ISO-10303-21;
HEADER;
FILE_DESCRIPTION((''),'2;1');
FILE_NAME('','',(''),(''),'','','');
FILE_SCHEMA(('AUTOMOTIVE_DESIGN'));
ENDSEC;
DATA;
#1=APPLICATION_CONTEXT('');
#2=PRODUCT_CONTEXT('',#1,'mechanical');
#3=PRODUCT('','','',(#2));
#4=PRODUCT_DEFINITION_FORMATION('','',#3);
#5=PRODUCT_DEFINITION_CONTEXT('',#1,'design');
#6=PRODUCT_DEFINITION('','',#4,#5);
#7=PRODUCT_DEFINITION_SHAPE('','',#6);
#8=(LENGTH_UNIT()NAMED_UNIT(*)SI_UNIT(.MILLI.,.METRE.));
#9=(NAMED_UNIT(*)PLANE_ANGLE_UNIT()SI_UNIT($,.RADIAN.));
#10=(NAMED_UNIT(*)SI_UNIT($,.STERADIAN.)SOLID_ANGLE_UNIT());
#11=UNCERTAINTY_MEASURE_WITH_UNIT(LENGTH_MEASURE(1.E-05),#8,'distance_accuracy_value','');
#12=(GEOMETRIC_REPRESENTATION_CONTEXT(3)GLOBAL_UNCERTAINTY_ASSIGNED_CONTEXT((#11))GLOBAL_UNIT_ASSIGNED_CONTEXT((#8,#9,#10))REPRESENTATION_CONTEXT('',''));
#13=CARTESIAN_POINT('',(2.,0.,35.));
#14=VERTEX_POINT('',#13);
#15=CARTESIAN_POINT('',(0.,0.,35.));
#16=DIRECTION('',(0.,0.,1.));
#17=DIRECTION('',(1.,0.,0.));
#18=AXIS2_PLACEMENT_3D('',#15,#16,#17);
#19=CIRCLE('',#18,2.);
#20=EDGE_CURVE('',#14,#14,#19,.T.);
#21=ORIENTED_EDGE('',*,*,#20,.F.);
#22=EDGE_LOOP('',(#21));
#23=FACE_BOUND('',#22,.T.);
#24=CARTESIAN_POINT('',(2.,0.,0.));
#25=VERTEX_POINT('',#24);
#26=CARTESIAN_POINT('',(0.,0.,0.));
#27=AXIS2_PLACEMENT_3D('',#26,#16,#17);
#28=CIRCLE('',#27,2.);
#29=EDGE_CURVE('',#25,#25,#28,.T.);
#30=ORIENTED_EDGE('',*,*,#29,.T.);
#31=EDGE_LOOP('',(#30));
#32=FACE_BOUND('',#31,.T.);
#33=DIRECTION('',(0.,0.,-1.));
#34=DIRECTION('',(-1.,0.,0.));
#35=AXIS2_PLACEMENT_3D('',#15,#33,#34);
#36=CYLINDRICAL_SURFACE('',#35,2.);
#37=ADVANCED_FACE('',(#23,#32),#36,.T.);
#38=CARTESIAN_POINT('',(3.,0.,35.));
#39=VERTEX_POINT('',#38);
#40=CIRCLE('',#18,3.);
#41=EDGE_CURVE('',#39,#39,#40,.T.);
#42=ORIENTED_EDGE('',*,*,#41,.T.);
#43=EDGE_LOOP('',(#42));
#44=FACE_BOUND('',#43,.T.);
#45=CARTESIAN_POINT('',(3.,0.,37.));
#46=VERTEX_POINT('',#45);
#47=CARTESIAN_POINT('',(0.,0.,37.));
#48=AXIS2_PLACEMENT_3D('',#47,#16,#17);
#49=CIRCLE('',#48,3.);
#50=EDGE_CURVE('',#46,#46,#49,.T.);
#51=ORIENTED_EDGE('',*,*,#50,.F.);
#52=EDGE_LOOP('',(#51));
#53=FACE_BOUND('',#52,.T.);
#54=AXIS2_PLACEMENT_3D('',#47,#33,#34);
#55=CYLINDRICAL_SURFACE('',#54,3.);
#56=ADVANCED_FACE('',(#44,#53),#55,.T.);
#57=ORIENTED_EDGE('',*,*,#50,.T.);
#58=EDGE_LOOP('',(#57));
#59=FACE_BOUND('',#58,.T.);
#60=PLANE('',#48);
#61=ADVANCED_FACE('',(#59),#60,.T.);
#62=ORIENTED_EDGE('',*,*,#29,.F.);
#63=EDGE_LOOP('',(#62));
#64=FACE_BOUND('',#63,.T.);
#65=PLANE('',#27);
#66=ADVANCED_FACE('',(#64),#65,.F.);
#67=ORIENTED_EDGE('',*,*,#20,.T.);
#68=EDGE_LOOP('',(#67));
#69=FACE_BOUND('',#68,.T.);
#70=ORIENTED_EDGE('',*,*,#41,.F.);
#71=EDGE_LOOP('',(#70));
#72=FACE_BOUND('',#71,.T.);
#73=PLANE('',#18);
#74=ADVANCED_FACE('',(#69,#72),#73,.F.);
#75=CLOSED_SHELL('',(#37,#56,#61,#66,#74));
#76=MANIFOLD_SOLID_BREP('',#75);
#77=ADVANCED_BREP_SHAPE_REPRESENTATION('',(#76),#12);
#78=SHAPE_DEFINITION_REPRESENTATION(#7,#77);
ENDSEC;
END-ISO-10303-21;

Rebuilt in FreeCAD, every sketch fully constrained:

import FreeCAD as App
import Part
import Sketcher
from FreeCAD import Vector
Q = App.Units.Quantity

doc = App.newDocument("Part")
body = doc.addObject("PartDesign::Body", "Body")

# Sketch on XY plane
sketch1 = body.newObject("Sketcher::SketchObject", "Sketch")
sketch1.AttachmentSupport = (doc.getObject("XY_Plane"), [""])
sketch1.MapMode = "FlatFace"
sketch1.addGeometry(Part.Circle(Vector(0, 0, 0), Vector(0, 0, 1), 2), False)
sketch1.addConstraint([
    Sketcher.Constraint("Coincident", 0, 3, -1, 1),
    Sketcher.Constraint("Diameter", 0, Q("4 mm")),
])
pad1 = body.newObject("PartDesign::Pad", "Pad")
pad1.Profile = sketch1
pad1.Length = 35

# Sketch on XY plane
sketch2 = body.newObject("Sketcher::SketchObject", "Sketch001")
sketch2.AttachmentSupport = (doc.getObject("XY_Plane"), [""])
sketch2.MapMode = "FlatFace"
sketch2.AttachmentOffset = App.Placement(Vector(0, 0, 35), App.Rotation())
sketch2.addGeometry(Part.Circle(Vector(0, 0, 0), Vector(0, 0, 1), 3), False)
sketch2.addConstraint([
    Sketcher.Constraint("Coincident", 0, 3, -1, 1),
    Sketcher.Constraint("Diameter", 0, Q("6 mm")),
])
pad2 = body.newObject("PartDesign::Pad", "Pad001")
pad2.Profile = sketch2
pad2.Length = 2

doc.recompute()
